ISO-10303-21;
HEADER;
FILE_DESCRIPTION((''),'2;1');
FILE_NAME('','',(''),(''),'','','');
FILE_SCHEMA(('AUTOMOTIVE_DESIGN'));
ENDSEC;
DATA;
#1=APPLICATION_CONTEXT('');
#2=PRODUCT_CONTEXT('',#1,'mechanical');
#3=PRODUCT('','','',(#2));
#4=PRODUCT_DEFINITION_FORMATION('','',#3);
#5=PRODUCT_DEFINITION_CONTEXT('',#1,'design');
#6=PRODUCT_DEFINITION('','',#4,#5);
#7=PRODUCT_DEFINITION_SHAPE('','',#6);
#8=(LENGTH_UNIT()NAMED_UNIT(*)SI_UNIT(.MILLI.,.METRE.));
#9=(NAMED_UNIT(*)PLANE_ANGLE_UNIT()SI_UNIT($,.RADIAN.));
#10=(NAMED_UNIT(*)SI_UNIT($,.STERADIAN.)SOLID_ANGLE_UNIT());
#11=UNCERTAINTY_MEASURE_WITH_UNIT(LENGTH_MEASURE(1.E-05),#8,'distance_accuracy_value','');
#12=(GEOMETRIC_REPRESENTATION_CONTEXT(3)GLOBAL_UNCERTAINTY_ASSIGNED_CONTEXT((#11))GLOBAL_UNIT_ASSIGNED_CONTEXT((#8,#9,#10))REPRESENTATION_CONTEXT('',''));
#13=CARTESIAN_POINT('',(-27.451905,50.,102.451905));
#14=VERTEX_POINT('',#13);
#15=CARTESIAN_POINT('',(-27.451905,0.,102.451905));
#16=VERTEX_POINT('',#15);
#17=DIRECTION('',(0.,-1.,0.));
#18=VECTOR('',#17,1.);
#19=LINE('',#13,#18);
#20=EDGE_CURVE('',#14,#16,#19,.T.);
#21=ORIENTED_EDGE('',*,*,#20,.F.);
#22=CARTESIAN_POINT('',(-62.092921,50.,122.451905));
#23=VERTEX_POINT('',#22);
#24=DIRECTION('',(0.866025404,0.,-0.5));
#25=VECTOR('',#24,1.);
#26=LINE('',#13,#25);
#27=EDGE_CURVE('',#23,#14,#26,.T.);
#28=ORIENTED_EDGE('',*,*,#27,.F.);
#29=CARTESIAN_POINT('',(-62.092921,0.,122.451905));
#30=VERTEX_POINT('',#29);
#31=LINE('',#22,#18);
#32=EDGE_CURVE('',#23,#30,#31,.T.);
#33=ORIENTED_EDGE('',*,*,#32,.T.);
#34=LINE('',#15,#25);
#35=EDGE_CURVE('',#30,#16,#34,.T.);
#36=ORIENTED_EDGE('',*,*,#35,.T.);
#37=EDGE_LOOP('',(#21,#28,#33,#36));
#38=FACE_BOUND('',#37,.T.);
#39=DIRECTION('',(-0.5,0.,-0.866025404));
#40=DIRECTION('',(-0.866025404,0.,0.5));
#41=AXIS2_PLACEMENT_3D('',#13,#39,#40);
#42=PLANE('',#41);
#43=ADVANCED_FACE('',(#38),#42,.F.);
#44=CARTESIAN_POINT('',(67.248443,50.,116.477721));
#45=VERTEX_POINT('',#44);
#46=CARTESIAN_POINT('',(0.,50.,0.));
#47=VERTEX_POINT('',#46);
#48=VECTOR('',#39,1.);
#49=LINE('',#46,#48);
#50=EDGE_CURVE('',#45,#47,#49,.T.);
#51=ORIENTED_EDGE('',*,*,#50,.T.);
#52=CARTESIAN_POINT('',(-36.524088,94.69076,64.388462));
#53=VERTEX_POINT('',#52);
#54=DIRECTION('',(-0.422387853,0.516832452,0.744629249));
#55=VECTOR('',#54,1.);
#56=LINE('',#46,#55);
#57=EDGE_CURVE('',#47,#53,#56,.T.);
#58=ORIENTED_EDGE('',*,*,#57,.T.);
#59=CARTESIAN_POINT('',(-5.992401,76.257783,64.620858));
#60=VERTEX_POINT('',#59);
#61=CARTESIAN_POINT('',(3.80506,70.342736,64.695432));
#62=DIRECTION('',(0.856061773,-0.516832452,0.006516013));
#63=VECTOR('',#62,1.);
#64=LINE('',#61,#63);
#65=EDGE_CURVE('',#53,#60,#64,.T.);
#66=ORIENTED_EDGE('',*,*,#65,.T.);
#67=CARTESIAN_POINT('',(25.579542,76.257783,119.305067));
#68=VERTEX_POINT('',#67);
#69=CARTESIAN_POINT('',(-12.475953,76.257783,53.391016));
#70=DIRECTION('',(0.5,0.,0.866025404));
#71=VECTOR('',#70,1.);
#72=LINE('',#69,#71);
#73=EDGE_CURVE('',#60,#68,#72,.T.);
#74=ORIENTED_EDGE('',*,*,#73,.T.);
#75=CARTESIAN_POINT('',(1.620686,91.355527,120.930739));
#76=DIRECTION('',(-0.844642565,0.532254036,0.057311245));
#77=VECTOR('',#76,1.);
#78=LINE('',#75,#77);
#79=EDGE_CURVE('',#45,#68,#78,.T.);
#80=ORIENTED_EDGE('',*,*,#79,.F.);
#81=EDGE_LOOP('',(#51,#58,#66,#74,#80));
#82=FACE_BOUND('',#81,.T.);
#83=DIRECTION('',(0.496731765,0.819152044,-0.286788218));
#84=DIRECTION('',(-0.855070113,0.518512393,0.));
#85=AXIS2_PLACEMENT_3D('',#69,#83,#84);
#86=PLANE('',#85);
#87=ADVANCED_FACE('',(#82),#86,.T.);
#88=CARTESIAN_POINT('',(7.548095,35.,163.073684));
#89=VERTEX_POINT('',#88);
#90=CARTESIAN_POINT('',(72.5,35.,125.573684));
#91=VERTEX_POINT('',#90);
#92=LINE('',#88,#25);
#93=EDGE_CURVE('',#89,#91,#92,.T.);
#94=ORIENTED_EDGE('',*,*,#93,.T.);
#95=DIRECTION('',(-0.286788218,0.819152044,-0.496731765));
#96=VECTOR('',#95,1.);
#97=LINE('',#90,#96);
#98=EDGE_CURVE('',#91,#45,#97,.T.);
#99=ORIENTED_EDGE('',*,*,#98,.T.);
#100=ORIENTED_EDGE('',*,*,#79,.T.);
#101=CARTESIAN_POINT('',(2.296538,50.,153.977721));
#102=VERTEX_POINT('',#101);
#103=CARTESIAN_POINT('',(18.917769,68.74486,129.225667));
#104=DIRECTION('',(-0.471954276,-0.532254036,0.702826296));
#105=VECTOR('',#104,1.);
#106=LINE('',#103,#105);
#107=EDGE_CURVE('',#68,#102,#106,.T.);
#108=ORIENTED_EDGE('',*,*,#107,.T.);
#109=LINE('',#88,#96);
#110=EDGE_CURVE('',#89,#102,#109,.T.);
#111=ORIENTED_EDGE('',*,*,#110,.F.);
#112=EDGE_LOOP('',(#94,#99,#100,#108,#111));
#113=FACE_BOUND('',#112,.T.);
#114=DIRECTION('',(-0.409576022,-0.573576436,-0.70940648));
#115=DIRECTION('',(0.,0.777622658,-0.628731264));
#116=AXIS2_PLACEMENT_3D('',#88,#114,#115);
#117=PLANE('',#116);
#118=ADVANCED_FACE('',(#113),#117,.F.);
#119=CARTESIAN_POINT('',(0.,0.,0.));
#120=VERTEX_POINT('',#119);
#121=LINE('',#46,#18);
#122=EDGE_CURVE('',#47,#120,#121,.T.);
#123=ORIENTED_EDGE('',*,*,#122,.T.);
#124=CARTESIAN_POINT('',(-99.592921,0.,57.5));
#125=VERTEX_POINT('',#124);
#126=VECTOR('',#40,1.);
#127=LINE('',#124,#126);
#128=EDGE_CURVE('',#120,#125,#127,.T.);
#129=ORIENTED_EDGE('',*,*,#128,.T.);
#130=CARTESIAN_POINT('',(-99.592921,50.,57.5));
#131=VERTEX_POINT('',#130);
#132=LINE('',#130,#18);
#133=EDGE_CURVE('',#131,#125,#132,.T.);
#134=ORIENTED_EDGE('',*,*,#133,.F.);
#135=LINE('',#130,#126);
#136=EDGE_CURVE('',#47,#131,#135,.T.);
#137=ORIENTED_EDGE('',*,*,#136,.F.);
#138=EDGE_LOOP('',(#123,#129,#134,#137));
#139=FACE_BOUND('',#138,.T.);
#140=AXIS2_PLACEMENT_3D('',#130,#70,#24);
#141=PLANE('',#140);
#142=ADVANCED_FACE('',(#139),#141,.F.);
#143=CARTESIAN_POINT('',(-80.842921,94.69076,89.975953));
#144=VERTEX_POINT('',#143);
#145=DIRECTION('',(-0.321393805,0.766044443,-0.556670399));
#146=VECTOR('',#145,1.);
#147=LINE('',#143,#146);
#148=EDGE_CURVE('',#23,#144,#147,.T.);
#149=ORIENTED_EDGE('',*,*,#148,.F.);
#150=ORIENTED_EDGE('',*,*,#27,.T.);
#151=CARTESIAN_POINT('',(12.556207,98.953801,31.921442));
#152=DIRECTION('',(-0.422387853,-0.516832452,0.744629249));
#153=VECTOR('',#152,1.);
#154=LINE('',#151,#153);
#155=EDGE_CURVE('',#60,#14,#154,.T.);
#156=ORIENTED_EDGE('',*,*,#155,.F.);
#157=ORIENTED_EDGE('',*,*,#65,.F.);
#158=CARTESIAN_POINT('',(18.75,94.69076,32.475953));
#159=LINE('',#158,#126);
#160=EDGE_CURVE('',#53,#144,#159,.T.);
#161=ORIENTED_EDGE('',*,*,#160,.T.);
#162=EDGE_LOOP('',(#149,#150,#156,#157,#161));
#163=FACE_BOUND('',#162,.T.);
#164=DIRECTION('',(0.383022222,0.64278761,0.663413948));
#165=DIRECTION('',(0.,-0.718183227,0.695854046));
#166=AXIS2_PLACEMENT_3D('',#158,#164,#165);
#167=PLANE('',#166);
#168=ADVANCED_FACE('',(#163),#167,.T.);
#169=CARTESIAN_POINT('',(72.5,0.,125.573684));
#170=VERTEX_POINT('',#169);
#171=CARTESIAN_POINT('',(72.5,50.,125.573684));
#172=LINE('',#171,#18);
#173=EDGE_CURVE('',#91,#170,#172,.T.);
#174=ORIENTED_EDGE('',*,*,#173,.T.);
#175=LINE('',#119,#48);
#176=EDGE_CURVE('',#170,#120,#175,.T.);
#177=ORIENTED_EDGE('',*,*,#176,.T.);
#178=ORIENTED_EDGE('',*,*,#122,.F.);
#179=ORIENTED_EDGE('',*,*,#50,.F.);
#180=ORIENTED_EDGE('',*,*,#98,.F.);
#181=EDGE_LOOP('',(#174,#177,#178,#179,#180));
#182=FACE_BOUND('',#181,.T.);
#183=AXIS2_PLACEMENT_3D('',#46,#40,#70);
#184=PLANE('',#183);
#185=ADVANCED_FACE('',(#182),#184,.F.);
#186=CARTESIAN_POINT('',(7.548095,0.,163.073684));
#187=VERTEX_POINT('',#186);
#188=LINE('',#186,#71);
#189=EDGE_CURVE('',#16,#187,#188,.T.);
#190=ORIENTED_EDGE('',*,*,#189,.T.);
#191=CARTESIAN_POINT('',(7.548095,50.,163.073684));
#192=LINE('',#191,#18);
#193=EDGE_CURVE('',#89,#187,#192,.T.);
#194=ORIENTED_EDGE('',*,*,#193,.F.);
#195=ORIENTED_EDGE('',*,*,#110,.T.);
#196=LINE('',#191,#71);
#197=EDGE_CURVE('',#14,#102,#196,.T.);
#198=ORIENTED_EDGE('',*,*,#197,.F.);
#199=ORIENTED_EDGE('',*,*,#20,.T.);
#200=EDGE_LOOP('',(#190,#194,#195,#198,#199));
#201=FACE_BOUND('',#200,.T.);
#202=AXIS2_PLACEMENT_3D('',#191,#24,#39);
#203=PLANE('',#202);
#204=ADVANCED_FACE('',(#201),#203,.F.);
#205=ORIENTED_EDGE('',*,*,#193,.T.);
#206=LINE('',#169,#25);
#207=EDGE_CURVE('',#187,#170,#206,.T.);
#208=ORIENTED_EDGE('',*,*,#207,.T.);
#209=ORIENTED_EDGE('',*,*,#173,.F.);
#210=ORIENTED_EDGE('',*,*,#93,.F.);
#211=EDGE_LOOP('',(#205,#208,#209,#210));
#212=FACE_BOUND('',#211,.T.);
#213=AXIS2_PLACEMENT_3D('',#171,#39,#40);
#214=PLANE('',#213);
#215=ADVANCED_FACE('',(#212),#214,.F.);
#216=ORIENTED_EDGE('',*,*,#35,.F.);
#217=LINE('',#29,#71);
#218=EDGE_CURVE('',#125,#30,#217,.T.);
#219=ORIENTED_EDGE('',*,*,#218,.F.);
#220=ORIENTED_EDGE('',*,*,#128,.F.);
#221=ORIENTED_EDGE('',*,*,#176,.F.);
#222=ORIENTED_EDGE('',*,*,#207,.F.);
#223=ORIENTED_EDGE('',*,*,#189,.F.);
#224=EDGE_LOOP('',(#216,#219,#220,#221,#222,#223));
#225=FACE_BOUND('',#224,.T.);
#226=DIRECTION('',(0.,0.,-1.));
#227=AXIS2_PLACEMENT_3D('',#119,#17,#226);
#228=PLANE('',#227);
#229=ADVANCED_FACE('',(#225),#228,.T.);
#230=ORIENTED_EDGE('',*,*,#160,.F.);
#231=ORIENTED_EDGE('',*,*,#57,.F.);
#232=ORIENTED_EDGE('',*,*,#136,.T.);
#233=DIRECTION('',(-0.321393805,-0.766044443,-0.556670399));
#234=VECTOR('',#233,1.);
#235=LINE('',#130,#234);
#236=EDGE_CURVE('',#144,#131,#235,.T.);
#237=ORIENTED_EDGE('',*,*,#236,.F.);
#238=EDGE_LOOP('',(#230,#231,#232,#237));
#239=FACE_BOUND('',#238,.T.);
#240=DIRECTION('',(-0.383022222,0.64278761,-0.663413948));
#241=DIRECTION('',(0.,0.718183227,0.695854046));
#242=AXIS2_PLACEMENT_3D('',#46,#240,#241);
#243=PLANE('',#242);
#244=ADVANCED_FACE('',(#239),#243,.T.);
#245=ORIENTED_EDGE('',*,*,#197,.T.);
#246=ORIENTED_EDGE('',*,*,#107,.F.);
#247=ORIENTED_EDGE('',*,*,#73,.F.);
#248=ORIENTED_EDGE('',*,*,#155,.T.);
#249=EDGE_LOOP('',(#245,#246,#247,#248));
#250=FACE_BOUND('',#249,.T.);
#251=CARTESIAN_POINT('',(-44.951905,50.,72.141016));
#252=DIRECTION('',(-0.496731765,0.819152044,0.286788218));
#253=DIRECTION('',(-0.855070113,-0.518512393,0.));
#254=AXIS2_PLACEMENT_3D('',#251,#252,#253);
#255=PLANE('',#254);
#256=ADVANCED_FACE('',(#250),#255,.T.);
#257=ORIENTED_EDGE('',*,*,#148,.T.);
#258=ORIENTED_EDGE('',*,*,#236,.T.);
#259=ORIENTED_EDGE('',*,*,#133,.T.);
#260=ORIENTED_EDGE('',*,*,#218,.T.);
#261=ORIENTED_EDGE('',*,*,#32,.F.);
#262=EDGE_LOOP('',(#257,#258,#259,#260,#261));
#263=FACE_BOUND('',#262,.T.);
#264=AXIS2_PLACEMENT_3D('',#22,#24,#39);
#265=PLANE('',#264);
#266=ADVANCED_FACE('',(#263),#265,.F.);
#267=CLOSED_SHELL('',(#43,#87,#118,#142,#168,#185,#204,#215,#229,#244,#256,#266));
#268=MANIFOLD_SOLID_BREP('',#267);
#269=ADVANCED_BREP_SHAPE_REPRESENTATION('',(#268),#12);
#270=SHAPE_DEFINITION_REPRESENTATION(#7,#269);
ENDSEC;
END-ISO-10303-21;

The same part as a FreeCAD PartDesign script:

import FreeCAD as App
import Part
import Sketcher
Q = App.Units.Quantity


def add_polygon(sketch, points):
    """Adds a closed chain of lines whose ends are joined by coincident constraints."""
    first, n = sketch.GeometryCount, len(points)
    for a, b in zip(points, points[1:] + points[:1]):
        sketch.addGeometry(Part.LineSegment(App.Vector(*a, 0), App.Vector(*b, 0)), False)
    for i in range(n):
        sketch.addConstraint(Sketcher.Constraint("Coincident", first + i, 2, first + (i + 1) % n, 1))

doc = App.newDocument("Part")
body = doc.addObject("PartDesign::Body", "Body")

# Sketch on XZ plane
sketch1 = body.newObject("Sketcher::SketchObject", "Sketch")
sketch1.AttachmentSupport = (doc.getObject("XZ_Plane"), [""])
sketch1.MapMode = "FlatFace"
add_polygon(sketch1, [(72.5, 125.573684), (0, 0), (-99.592921, 57.5), (-62.092921, 122.451905), (-27.451905, 102.451905), (7.548095, 163.073684)])  # lines 0-5
sketch1.addConstraint([
    Sketcher.Constraint("Coincident", 0, 2, -1, 1),
    Sketcher.Constraint("Perpendicular", 0, 1),
    Sketcher.Constraint("Perpendicular", 1, 2),
    Sketcher.Constraint("Perpendicular", 2, 3),
    Sketcher.Constraint("Perpendicular", 3, 4),
    Sketcher.Constraint("Perpendicular", 4, 5),
    Sketcher.Constraint("Equal", 2, 5),
    Sketcher.Constraint("Angle", 0, Q("-120 deg")),
    Sketcher.Constraint("Distance", 0, Q("145 mm")),
    Sketcher.Constraint("Distance", 1, Q("115 mm")),
    Sketcher.Constraint("Distance", 2, Q("75 mm")),
])
pad1 = body.newObject("PartDesign::Pad", "Pad")
pad1.Profile = sketch1
pad1.Length = 50
pad1.Reversed = True

# Sketch on an angled plane
sketch2 = body.newObject("Sketcher::SketchObject", "Sketch001")
sketch2.Placement = App.Placement(App.Vector(-99.592921, 0, 57.5), App.Rotation(App.Vector(0.5, 0, 0.866025404), App.Vector(0, 1, 0), App.Vector(-0.866025404, 0, 0.5), "ZXY"))
add_polygon(sketch2, [(0, 50), (75, 50), (37.5, 94.69076)])  # lines 0-2
sketch2.addConstraint([
    Sketcher.Constraint("Horizontal", 0),
    Sketcher.Constraint("PointOnObject", 2, 2, -2),
    Sketcher.Constraint("Equal", 1, 2),
    Sketcher.Constraint("DistanceX", 0, 1, 0, 2, Q("75 mm")),
    Sketcher.Constraint("Angle", 1, Q("130 deg")),
    Sketcher.Constraint("DistanceY", -1, 1, 0, 2, Q("50 mm")),
])
pad2 = body.newObject("PartDesign::Pad", "Pad001")
pad2.Profile = sketch2
pad2.Length = 115
pad2.Reversed = True

# Sketch on an angled plane
sketch3 = body.newObject("Sketcher::SketchObject", "Sketch002")
sketch3.Placement = App.Placement(App.Vector(72.5, 0, 125.573684), App.Rotation(App.Vector(0.866025404, 0, -0.5), App.Vector(0, 1, 0), App.Vector(0.5, 0, 0.866025404), "ZXY"))
add_polygon(sketch3, [(-75, 50), (0, 50), (-37.5, 76.257783)])  # lines 0-2
sketch3.addConstraint([
    Sketcher.Constraint("Horizontal", 0),
    Sketcher.Constraint("PointOnObject", 0, 2, -2),
    Sketcher.Constraint("Equal", 1, 2),
    Sketcher.Constraint("DistanceX", 0, 1, 0, 2, Q("75 mm")),
    Sketcher.Constraint("Angle", 1, Q("145 deg")),
    Sketcher.Constraint("DistanceY", -1, 1, 0, 2, Q("50 mm")),
])
pad3 = body.newObject("PartDesign::Pad", "Pad002")
pad3.Profile = sketch3
pad3.Length = 105
pad3.Reversed = True

# Sketch on an angled plane
sketch4 = body.newObject("Sketcher::SketchObject", "Sketch003")
sketch4.Placement = App.Placement(App.Vector(72.5, 0, 125.573684), App.Rotation(App.Vector(0.866025404, 0, -0.5), App.Vector(0, 1, 0), App.Vector(0.5, 0, 0.866025404), "ZXY"))
add_polygon(sketch4, [(0, 50), (0, 113.526991), (-90.725946, 113.526991)])  # lines 0-2
sketch4.addConstraint([
    Sketcher.Constraint("Vertical", 0),
    Sketcher.Constraint("Horizontal", 1),
    Sketcher.Constraint("PointOnObject", 0, 2, -2),
    Sketcher.Constraint("Angle", 2, Q("-35 deg")),
    Sketcher.Constraint("DistanceY", -1, 1, 2, 2, Q("50 mm")),
    Sketcher.Constraint("DistanceY", 0, 1, 0, 2, Q("63.526991 mm")),
])
pocket1 = body.newObject("PartDesign::Pocket", "Pocket")
pocket1.Profile = sketch4
pocket1.Length = 155

# Sketch on an angled plane
sketch5 = body.newObject("Sketcher::SketchObject", "Sketch004")
sketch5.Placement = App.Placement(App.Vector(0, 0, 0), App.Rotation(App.Vector(-0.5, 0, -0.866025404), App.Vector(0, 1, 0), App.Vector(0.866025404, 0, -0.5), "ZXY"))
add_polygon(sketch5, [(-145, 35), (-97.861503, 102.32075), (-145, 102.32075)])  # lines 0-2
sketch5.addConstraint([
    Sketcher.Constraint("Horizontal", 1),
    Sketcher.Constraint("Vertical", 2),
    Sketcher.Constraint("Angle", 0, Q("55 deg")),
    Sketcher.Constraint("DistanceX", 1, 2, -1, 1, Q("145 mm")),
    Sketcher.Constraint("DistanceY", -1, 1, 2, 2, Q("35 mm")),
    Sketcher.Constraint("DistanceY", 2, 2, 2, 1, Q("67.32075 mm")),
])
pocket2 = body.newObject("PartDesign::Pocket", "Pocket001")
pocket2.Profile = sketch5
pocket2.Length = 75

doc.recompute()
